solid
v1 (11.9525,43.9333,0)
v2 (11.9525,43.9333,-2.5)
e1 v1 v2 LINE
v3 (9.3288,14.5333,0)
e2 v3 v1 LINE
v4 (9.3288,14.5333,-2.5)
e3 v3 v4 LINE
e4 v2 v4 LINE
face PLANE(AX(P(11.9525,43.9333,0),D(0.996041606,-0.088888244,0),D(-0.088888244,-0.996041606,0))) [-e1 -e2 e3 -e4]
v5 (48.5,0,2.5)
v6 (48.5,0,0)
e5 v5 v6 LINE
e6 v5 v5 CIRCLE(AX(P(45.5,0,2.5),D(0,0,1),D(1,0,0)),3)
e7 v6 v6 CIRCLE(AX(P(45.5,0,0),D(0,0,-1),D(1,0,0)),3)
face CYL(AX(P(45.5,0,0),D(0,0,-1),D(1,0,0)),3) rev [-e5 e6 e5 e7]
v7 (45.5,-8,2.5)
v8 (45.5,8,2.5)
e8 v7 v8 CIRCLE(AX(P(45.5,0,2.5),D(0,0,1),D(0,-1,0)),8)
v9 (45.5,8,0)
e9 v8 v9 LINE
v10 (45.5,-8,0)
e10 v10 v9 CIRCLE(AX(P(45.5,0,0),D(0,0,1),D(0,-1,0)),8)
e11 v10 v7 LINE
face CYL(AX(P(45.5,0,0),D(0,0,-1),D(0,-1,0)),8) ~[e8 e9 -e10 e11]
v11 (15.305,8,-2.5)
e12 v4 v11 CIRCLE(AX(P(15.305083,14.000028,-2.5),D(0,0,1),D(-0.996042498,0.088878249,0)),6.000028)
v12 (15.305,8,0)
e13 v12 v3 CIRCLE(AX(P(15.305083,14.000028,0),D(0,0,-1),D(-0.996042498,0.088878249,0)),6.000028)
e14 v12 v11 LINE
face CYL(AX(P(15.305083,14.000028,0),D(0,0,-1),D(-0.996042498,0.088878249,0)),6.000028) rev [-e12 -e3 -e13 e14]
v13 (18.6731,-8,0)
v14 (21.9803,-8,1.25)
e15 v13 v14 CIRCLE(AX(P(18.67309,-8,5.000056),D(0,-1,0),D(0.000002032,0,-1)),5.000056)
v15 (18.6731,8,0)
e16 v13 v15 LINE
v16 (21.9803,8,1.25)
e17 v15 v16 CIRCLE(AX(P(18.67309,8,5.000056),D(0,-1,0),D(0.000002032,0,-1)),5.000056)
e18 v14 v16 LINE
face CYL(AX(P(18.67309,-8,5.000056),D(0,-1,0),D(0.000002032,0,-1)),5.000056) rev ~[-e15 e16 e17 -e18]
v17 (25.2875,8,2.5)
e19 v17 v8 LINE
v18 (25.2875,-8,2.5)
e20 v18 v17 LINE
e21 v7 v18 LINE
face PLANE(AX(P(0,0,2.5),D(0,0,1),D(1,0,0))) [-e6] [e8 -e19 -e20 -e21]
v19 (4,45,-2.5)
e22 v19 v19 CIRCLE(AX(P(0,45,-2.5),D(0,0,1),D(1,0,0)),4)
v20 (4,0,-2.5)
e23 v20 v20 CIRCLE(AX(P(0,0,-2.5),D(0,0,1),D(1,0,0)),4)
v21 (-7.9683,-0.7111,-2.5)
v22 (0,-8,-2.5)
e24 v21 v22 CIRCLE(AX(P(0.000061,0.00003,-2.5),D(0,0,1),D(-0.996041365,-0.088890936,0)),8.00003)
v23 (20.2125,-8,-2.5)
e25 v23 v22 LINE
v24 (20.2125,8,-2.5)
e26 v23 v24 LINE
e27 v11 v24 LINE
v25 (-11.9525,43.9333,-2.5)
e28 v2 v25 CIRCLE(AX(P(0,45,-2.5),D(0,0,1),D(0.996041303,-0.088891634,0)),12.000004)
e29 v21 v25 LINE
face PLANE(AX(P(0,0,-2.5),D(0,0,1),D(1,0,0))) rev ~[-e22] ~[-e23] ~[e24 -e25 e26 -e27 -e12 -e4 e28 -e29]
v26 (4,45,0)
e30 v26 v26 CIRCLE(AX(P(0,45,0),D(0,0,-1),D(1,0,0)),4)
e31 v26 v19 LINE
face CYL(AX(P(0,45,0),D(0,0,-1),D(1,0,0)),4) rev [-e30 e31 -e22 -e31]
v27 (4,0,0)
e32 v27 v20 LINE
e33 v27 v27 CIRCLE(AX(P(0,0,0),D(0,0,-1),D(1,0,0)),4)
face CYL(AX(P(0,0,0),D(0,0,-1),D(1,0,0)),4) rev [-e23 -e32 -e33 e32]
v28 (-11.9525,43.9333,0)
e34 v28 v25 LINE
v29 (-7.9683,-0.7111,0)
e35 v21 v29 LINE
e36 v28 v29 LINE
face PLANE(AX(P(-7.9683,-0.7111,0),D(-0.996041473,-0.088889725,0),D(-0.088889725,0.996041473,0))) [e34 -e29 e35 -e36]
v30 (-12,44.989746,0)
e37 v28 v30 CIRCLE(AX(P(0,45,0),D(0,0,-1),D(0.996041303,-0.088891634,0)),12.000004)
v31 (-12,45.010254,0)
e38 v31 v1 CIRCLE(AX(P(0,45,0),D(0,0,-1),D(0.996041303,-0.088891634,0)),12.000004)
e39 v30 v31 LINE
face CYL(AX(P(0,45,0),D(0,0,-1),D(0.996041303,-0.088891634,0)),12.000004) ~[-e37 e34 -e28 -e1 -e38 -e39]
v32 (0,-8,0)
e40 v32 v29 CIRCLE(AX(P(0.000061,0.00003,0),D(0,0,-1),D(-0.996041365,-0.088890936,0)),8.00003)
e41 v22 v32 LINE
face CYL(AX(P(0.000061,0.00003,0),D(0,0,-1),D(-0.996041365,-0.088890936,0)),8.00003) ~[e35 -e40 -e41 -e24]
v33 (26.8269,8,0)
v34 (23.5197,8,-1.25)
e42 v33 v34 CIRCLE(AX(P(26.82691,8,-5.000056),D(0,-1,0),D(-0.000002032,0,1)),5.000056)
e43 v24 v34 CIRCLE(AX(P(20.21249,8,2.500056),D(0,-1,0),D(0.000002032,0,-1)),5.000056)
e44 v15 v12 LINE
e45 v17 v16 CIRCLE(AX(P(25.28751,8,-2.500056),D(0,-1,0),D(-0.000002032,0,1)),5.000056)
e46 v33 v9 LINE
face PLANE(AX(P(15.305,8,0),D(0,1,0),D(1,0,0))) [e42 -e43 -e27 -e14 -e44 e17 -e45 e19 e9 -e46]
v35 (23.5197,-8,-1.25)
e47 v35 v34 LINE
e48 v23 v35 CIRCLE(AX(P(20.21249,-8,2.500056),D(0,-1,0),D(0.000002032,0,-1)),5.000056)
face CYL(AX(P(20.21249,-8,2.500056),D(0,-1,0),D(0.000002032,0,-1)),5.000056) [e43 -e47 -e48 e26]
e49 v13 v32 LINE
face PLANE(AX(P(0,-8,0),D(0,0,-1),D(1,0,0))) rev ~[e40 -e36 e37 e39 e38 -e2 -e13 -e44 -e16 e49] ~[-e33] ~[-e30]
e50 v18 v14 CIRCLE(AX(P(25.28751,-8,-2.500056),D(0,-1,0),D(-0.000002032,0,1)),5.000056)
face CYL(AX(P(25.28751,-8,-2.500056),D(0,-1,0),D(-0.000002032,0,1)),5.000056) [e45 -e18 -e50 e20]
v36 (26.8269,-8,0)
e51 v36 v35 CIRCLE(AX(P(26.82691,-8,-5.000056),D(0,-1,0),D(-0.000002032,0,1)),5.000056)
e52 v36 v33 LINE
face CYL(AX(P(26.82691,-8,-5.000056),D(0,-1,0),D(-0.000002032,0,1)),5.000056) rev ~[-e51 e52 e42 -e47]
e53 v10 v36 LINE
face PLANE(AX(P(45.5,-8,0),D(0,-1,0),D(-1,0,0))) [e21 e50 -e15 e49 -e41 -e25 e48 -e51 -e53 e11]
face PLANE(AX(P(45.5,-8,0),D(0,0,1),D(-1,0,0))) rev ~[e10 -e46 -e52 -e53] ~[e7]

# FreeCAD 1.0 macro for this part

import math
import FreeCAD as App
import Part
import Sketcher

V = App.Vector
Q = App.Units.Quantity

doc = App.newDocument("Part")
body = doc.addObject("PartDesign::Body", "Body")

# Sketch on XY plane
sketch1 = doc.addObject("Sketcher::SketchObject", "Sketch")
body.addObject(sketch1)
sketch1.AttachmentSupport = (doc.XY_Plane, [""])
sketch1.MapMode = "FlatFace"
sketch1.addGeometry(Part.LineSegment(V(-12, 43.9, 0), V(-8, -0.7, 0)), False)
sketch1.addGeometry(Part.ArcOfCircle(Part.Circle(V(0, 0, 0), V(0, 0, 1), 8), math.radians(-175), math.radians(-90)), False)
sketch1.addGeometry(Part.LineSegment(V(0, -8, 0), V(45.5, -8, 0)), False)
sketch1.addGeometry(Part.ArcOfCircle(Part.Circle(V(45.5, 0, 0), V(0, 0, 1), 8), math.radians(-90), math.radians(90)), False)
sketch1.addGeometry(Part.LineSegment(V(45.5, 8, 0), V(15.3, 8, 0)), False)
sketch1.addGeometry(Part.ArcOfCircle(Part.Circle(V(15.3, 14, 0), V(0, 0, 1), 6), math.radians(175), math.radians(270)), False)
sketch1.addGeometry(Part.LineSegment(V(9.3, 14.5, 0), V(12, 43.9, 0)), False)
sketch1.addGeometry(Part.ArcOfCircle(Part.Circle(V(0, 45, 0), V(0, 0, 1), 12), math.radians(-5), math.radians(185)), False)
sketch1.addGeometry(Part.Circle(V(0, 0, 0), V(0, 0, 1), 4), False)
sketch1.addGeometry(Part.Circle(V(45.5, 0, 0), V(0, 0, 1), 3), False)
sketch1.addGeometry(Part.Circle(V(0, 45, 0), V(0, 0, 1), 4), False)
sketch1.addConstraint(Sketcher.Constraint("Tangent", 0, 2, 1, 1))
sketch1.addConstraint(Sketcher.Constraint("Tangent", 1, 2, 2, 1))
sketch1.addConstraint(Sketcher.Constraint("Tangent", 2, 2, 3, 1))
sketch1.addConstraint(Sketcher.Constraint("Tangent", 3, 2, 4, 1))
sketch1.addConstraint(Sketcher.Constraint("Tangent", 4, 2, 5, 2))
sketch1.addConstraint(Sketcher.Constraint("Tangent", 5, 1, 6, 1))
sketch1.addConstraint(Sketcher.Constraint("Tangent", 6, 2, 7, 1))
sketch1.addConstraint(Sketcher.Constraint("Tangent", 7, 2, 0, 1))
sketch1.addConstraint(Sketcher.Constraint("Horizontal", 2))
sketch1.addConstraint(Sketcher.Constraint("Horizontal", 4))
sketch1.addConstraint(Sketcher.Constraint("Coincident", 1, 3, -1, 1))
sketch1.addConstraint(Sketcher.Constraint("Coincident", 8, 3, -1, 1))
sketch1.addConstraint(Sketcher.Constraint("Coincident", 9, 3, 3, 3))
sketch1.addConstraint(Sketcher.Constraint("Coincident", 10, 3, 7, 3))
sketch1.addConstraint(Sketcher.Constraint("Equal", 1, 3))
sketch1.addConstraint(Sketcher.Constraint("Equal", 8, 10))
sketch1.addConstraint(Sketcher.Constraint("Symmetric", 6, 2, 7, 2, -2))
sketch1.addConstraint(Sketcher.Constraint("Diameter", 8, Q("8 mm")))
sketch1.addConstraint(Sketcher.Constraint("Diameter", 9, Q("6 mm")))
sketch1.addConstraint(Sketcher.Constraint("Radius", 1, Q("8 mm")))
sketch1.addConstraint(Sketcher.Constraint("Radius", 5, Q("6 mm")))
sketch1.addConstraint(Sketcher.Constraint("Radius", 7, Q("12 mm")))
sketch1.addConstraint(Sketcher.Constraint("DistanceX", 2, 1, 2, 2, Q("45.5 mm")))
sketch1.addConstraint(Sketcher.Constraint("DistanceY", -1, 1, 7, 3, Q("45 mm")))
pad1 = doc.addObject("PartDesign::Pad", "Pad")
body.addObject(pad1)
pad1.Profile = sketch1
pad1.Length = 5
pad1.Midplane = True

# Sketch on XZ plane
sketch2 = doc.addObject("Sketcher::SketchObject", "Sketch001")
body.addObject(sketch2)
sketch2.AttachmentSupport = (doc.XZ_Plane, [""])
sketch2.MapMode = "FlatFace"
sketch2.AttachmentOffset = App.Placement(V(0, 0, 8), App.Rotation())
sketch2.addGeometry(Part.LineSegment(V(20.2, -2.5, 0), V(53.5, -2.5, 0)), False)
sketch2.addGeometry(Part.LineSegment(V(53.5, -2.5, 0), V(53.5, 0, 0)), False)
sketch2.addGeometry(Part.LineSegment(V(53.5, 0, 0), V(26.8, 0, 0)), False)
sketch2.addGeometry(Part.ArcOfCircle(Part.Circle(V(26.8, -5, 0), V(0, 0, 1), 5), math.radians(90), math.radians(131)), False)
sketch2.addGeometry(Part.ArcOfCircle(Part.Circle(V(20.2, 2.5, 0), V(0, 0, 1), 5), math.radians(-90), math.radians(-49)), False)
sketch2.addGeometry(Part.ArcOfCircle(Part.Circle(V(25.3, -2.5, 0), V(0, 0, 1), 5), math.radians(90), math.radians(131)), False)
sketch2.addGeometry(Part.LineSegment(V(25.3, 2.5, 0), V(-12, 2.5, 0)), False)
sketch2.addGeometry(Part.LineSegment(V(-12, 2.5, 0), V(-12, 0, 0)), False)
sketch2.addGeometry(Part.LineSegment(V(-12, 0, 0), V(18.7, 0, 0)), False)
sketch2.addGeometry(Part.ArcOfCircle(Part.Circle(V(18.7, 5, 0), V(0, 0, 1), 5), math.radians(-90), math.radians(-49)), False)
sketch2.addConstraint(Sketcher.Constraint("Coincident", 0, 2, 1, 1))
sketch2.addConstraint(Sketcher.Constraint("Coincident", 1, 2, 2, 1))
sketch2.addConstraint(Sketcher.Constraint("Tangent", 2, 2, 3, 1))
sketch2.addConstraint(Sketcher.Constraint("Tangent", 3, 2, 4, 2))
sketch2.addConstraint(Sketcher.Constraint("Tangent", 4, 1, 0, 1))
sketch2.addConstraint(Sketcher.Constraint("Tangent", 5, 1, 6, 1))
sketch2.addConstraint(Sketcher.Constraint("Coincident", 6, 2, 7, 1))
sketch2.addConstraint(Sketcher.Constraint("Coincident", 7, 2, 8, 1))
sketch2.addConstraint(Sketcher.Constraint("Tangent", 8, 2, 9, 1))
sketch2.addConstraint(Sketcher.Constraint("Tangent", 9, 2, 5, 2))
sketch2.addConstraint(Sketcher.Constraint("Horizontal", 0))
sketch2.addConstraint(Sketcher.Constraint("Vertical", 1))
sketch2.addConstraint(Sketcher.Constraint("Horizontal", 2))
sketch2.addConstraint(Sketcher.Constraint("Horizontal", 6))
sketch2.addConstraint(Sketcher.Constraint("Vertical", 7))
sketch2.addConstraint(Sketcher.Constraint("Horizontal", 8))
sketch2.addConstraint(Sketcher.Constraint("Equal", 3, 4))
sketch2.addConstraint(Sketcher.Constraint("Equal", 4, 5))
sketch2.addConstraint(Sketcher.Constraint("Equal", 5, 9))
sketch2.addConstraint(Sketcher.Constraint("PointOnObject", 1, 2, -1))
sketch2.addConstraint(Sketcher.Constraint("PointOnObject", 7, 2, -1))
sketch2.addConstraint(Sketcher.Constraint("Horizontal", 5, 3, 0, 2))
sketch2.addConstraint(Sketcher.Constraint("Equal", 1, 7))
sketch2.addConstraint(Sketcher.Constraint("Radius", 3, Q("5 mm")))
sketch2.addConstraint(Sketcher.Constraint("DistanceX", 6, 2, -1, 1, Q("12 mm")))
sketch2.addConstraint(Sketcher.Constraint("DistanceX", -1, 1, 0, 2, Q("53.5 mm")))
sketch2.addConstraint(Sketcher.Constraint("DistanceX", 2, 2, 2, 1, Q("26.673 mm")))
sketch2.addConstraint(Sketcher.Constraint("DistanceX", 8, 1, 8, 2, Q("30.673 mm")))
pocket1 = doc.addObject("PartDesign::Pocket", "Pocket")
body.addObject(pocket1)
pocket1.Profile = sketch2
pocket1.Type = "ThroughAll"

doc.recompute()
